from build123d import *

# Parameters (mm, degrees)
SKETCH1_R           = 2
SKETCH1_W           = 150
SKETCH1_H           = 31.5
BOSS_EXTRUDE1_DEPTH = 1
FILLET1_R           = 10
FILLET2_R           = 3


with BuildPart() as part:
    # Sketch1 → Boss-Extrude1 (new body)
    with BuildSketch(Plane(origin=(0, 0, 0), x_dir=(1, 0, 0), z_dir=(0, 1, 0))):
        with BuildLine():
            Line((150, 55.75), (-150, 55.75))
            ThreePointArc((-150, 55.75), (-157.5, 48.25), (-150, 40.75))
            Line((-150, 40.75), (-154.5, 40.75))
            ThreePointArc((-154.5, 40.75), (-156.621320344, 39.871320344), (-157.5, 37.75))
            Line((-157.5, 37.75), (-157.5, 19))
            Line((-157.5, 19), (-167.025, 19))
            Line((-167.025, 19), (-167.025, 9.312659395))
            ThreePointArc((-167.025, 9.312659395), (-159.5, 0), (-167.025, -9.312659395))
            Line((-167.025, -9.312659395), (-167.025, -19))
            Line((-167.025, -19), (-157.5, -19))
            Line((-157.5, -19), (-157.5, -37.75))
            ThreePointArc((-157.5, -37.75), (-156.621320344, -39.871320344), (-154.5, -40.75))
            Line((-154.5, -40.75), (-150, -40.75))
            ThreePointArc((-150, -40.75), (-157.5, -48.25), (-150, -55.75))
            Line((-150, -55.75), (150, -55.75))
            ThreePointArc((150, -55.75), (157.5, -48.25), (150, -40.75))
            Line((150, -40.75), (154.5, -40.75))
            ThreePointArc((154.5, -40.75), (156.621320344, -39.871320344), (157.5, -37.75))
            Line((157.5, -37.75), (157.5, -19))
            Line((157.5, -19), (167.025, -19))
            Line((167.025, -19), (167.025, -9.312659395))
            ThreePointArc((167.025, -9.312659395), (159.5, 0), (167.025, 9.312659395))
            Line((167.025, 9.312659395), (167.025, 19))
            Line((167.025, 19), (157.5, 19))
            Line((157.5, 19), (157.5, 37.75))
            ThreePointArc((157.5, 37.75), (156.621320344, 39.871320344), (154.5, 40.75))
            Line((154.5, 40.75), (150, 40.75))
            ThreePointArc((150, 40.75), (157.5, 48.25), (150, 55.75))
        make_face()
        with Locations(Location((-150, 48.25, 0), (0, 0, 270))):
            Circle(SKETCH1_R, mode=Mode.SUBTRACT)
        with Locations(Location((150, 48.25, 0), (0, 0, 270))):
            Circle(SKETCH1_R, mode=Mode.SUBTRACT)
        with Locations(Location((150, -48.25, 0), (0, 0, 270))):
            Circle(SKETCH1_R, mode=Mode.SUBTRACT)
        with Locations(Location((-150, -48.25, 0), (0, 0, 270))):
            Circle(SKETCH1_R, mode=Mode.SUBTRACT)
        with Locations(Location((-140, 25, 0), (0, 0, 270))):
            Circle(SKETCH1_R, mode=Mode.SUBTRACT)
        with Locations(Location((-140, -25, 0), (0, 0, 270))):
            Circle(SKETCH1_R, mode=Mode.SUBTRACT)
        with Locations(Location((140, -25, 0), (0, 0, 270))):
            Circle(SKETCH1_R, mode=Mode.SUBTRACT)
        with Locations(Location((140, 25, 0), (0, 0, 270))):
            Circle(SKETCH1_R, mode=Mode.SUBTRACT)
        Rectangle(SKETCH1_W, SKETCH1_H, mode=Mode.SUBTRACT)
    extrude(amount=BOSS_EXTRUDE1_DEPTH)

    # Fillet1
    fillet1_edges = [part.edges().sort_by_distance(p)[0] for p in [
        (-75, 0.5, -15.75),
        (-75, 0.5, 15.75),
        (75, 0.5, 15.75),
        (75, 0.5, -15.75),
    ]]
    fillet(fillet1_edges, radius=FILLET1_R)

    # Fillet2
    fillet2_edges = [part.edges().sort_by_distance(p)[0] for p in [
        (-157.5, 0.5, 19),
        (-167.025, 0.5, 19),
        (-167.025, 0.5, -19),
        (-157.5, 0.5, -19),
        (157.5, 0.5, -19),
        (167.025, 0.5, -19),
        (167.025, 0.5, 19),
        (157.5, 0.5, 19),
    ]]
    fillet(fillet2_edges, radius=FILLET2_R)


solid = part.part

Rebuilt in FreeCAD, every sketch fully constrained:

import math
import FreeCAD as App
import Part
import Sketcher

V = App.Vector
Q = App.Units.Quantity


def edges_at(feature, points):
    """Names of the edges that pass closest to the given points."""
    edges = feature.Shape.Edges
    near = lambda p: min(range(len(edges)), key=lambda i: edges[i].distToShape(Part.Vertex(*p))[0])
    return sorted({f"Edge{near(p) + 1}" for p in points})


def add_polygon(sketch, points):
    """Adds a closed chain of lines whose ends are joined by coincident constraints."""
    first, n = sketch.GeometryCount, len(points)
    for a, b in zip(points, points[1:] + points[:1]):
        sketch.addGeometry(Part.LineSegment(App.Vector(*a, 0), App.Vector(*b, 0)), False)
    for i in range(n):
        sketch.addConstraint(Sketcher.Constraint("Coincident", first + i, 2, first + (i + 1) % n, 1))

doc = App.newDocument("Part")
body = doc.addObject("PartDesign::Body", "Body")

sketch1 = body.newObject("Sketcher::SketchObject", "Sketch")
sketch1.AttachmentSupport = (doc.getObject("XZ_Plane"), [""])
sketch1.MapMode = "FlatFace"
sketch1.addGeometry(Part.LineSegment(V(150, -55.75, 0), V(-150, -55.75, 0)), False)
sketch1.addGeometry(Part.ArcOfCircle(Part.Circle(V(-150, -48.25, 0), V(0, 0, 1), 7.5), math.radians(90), math.radians(270)), False)
sketch1.addGeometry(Part.LineSegment(V(-150, -40.75, 0), V(-154.5, -40.75, 0)), False)
sketch1.addGeometry(Part.ArcOfCircle(Part.Circle(V(-154.5, -37.75, 0), V(0, 0, 1), 3), math.radians(180), math.radians(270)), False)
sketch1.addGeometry(Part.LineSegment(V(-157.5, -37.75, 0), V(-157.5, -19, 0)), False)
sketch1.addGeometry(Part.LineSegment(V(-157.5, -19, 0), V(-167.025, -19, 0)), False)
sketch1.addGeometry(Part.LineSegment(V(-167.025, -19, 0), V(-167.025, -9.312659, 0)), False)
sketch1.addGeometry(Part.ArcOfCircle(Part.Circle(V(-169.025, 0, 0), V(0, 0, 1), 9.525), math.radians(-77.879186), math.radians(77.879186)), False)
sketch1.addGeometry(Part.LineSegment(V(-167.025, 9.312659, 0), V(-167.025, 19, 0)), False)
sketch1.addGeometry(Part.LineSegment(V(-167.025, 19, 0), V(-157.5, 19, 0)), False)
sketch1.addGeometry(Part.LineSegment(V(-157.5, 19, 0), V(-157.5, 37.75, 0)), False)
sketch1.addGeometry(Part.ArcOfCircle(Part.Circle(V(-154.5, 37.75, 0), V(0, 0, 1), 3), math.radians(90), math.radians(180)), False)
sketch1.addGeometry(Part.LineSegment(V(-154.5, 40.75, 0), V(-150, 40.75, 0)), False)
sketch1.addGeometry(Part.ArcOfCircle(Part.Circle(V(-150, 48.25, 0), V(0, 0, 1), 7.5), math.radians(90), math.radians(270)), False)
sketch1.addGeometry(Part.LineSegment(V(-150, 55.75, 0), V(150, 55.75, 0)), False)
sketch1.addGeometry(Part.ArcOfCircle(Part.Circle(V(150, 48.25, 0), V(0, 0, 1), 7.5), math.radians(-90), math.radians(90)), False)
sketch1.addGeometry(Part.LineSegment(V(150, 40.75, 0), V(154.5, 40.75, 0)), False)
sketch1.addGeometry(Part.ArcOfCircle(Part.Circle(V(154.5, 37.75, 0), V(0, 0, 1), 3), math.radians(0), math.radians(90)), False)
sketch1.addGeometry(Part.LineSegment(V(157.5, 37.75, 0), V(157.5, 19, 0)), False)
sketch1.addGeometry(Part.LineSegment(V(157.5, 19, 0), V(167.025, 19, 0)), False)
sketch1.addGeometry(Part.LineSegment(V(167.025, 19, 0), V(167.025, 9.312659, 0)), False)
sketch1.addGeometry(Part.ArcOfCircle(Part.Circle(V(169.025, 0, 0), V(0, 0, 1), 9.525), math.radians(102.120814), math.radians(257.879186)), False)
sketch1.addGeometry(Part.LineSegment(V(167.025, -9.312659, 0), V(167.025, -19, 0)), False)
sketch1.addGeometry(Part.LineSegment(V(167.025, -19, 0), V(157.5, -19, 0)), False)
sketch1.addGeometry(Part.LineSegment(V(157.5, -19, 0), V(157.5, -37.75, 0)), False)
sketch1.addGeometry(Part.ArcOfCircle(Part.Circle(V(154.5, -37.75, 0), V(0, 0, 1), 3), math.radians(-90), math.radians(0)), False)
sketch1.addGeometry(Part.LineSegment(V(154.5, -40.75, 0), V(150, -40.75, 0)), False)
sketch1.addGeometry(Part.ArcOfCircle(Part.Circle(V(150, -48.25, 0), V(0, 0, 1), 7.5), math.radians(-90), math.radians(90)), False)
sketch1.addGeometry(Part.Circle(V(-150, 48.25, 0), V(0, 0, 1), 2), False)
sketch1.addGeometry(Part.Circle(V(-140, 25, 0), V(0, 0, 1), 2), False)
sketch1.addGeometry(Part.Circle(V(150, 48.25, 0), V(0, 0, 1), 2), False)
sketch1.addGeometry(Part.Circle(V(140, 25, 0), V(0, 0, 1), 2), False)
sketch1.addGeometry(Part.Circle(V(-140, -25, 0), V(0, 0, 1), 2), False)
sketch1.addGeometry(Part.Circle(V(-150, -48.25, 0), V(0, 0, 1), 2), False)
add_polygon(sketch1, [(75, 15.75), (-75, 15.75), (-75, -15.75), (75, -15.75)])
sketch1.addGeometry(Part.Circle(V(140, -25, 0), V(0, 0, 1), 2), False)
sketch1.addGeometry(Part.Circle(V(150, -48.25, 0), V(0, 0, 1), 2), False)
sketch1.addConstraint(Sketcher.Constraint("Tangent", 0, 2, 1, 2))
sketch1.addConstraint(Sketcher.Constraint("Tangent", 1, 1, 2, 1))
sketch1.addConstraint(Sketcher.Constraint("Tangent", 2, 2, 3, 2))
sketch1.addConstraint(Sketcher.Constraint("Tangent", 3, 1, 4, 1))
sketch1.addConstraint(Sketcher.Constraint("Coincident", 4, 2, 5, 1))
sketch1.addConstraint(Sketcher.Constraint("Coincident", 5, 2, 6, 1))
sketch1.addConstraint(Sketcher.Constraint("Coincident", 6, 2, 7, 1))
sketch1.addConstraint(Sketcher.Constraint("Coincident", 7, 2, 8, 1))
sketch1.addConstraint(Sketcher.Constraint("Coincident", 8, 2, 9, 1))
sketch1.addConstraint(Sketcher.Constraint("Coincident", 9, 2, 10, 1))
sketch1.addConstraint(Sketcher.Constraint("Tangent", 10, 2, 11, 2))
sketch1.addConstraint(Sketcher.Constraint("Tangent", 11, 1, 12, 1))
sketch1.addConstraint(Sketcher.Constraint("Tangent", 12, 2, 13, 2))
sketch1.addConstraint(Sketcher.Constraint("Tangent", 13, 1, 14, 1))
sketch1.addConstraint(Sketcher.Constraint("Tangent", 14, 2, 15, 2))
sketch1.addConstraint(Sketcher.Constraint("Tangent", 15, 1, 16, 1))
sketch1.addConstraint(Sketcher.Constraint("Tangent", 16, 2, 17, 2))
sketch1.addConstraint(Sketcher.Constraint("Tangent", 17, 1, 18, 1))
sketch1.addConstraint(Sketcher.Constraint("Coincident", 18, 2, 19, 1))
sketch1.addConstraint(Sketcher.Constraint("Coincident", 19, 2, 20, 1))
sketch1.addConstraint(Sketcher.Constraint("Coincident", 20, 2, 21, 1))
sketch1.addConstraint(Sketcher.Constraint("Coincident", 21, 2, 22, 1))
sketch1.addConstraint(Sketcher.Constraint("Coincident", 22, 2, 23, 1))
sketch1.addConstraint(Sketcher.Constraint("Coincident", 23, 2, 24, 1))
sketch1.addConstraint(Sketcher.Constraint("Tangent", 24, 2, 25, 2))
sketch1.addConstraint(Sketcher.Constraint("Tangent", 25, 1, 26, 1))
sketch1.addConstraint(Sketcher.Constraint("Tangent", 26, 2, 27, 2))
sketch1.addConstraint(Sketcher.Constraint("Tangent", 27, 1, 0, 1))
sketch1.addConstraint(Sketcher.Constraint("Horizontal", 0))
sketch1.addConstraint(Sketcher.Constraint("Horizontal", 2))
sketch1.addConstraint(Sketcher.Constraint("Vertical", 4))
sketch1.addConstraint(Sketcher.Constraint("Horizontal", 5))
sketch1.addConstraint(Sketcher.Constraint("Vertical", 6))
sketch1.addConstraint(Sketcher.Constraint("Vertical", 8))
sketch1.addConstraint(Sketcher.Constraint("Horizontal", 9))
sketch1.addConstraint(Sketcher.Constraint("Vertical", 10))
sketch1.addConstraint(Sketcher.Constraint("Horizontal", 12))
sketch1.addConstraint(Sketcher.Constraint("Horizontal", 14))
sketch1.addConstraint(Sketcher.Constraint("Horizontal", 16))
sketch1.addConstraint(Sketcher.Constraint("Vertical", 18))
sketch1.addConstraint(Sketcher.Constraint("Horizontal", 19))
sketch1.addConstraint(Sketcher.Constraint("Vertical", 20))
sketch1.addConstraint(Sketcher.Constraint("Vertical", 22))
sketch1.addConstraint(Sketcher.Constraint("Horizontal", 23))
sketch1.addConstraint(Sketcher.Constraint("Vertical", 24))
sketch1.addConstraint(Sketcher.Constraint("Horizontal", 26))
sketch1.addConstraint(Sketcher.Constraint("Horizontal", 34))
sketch1.addConstraint(Sketcher.Constraint("Vertical", 35))
sketch1.addConstraint(Sketcher.Constraint("Horizontal", 36))
sketch1.addConstraint(Sketcher.Constraint("Vertical", 37))
sketch1.addConstraint(Sketcher.Constraint("Coincident", 28, 3, 13, 3))
sketch1.addConstraint(Sketcher.Constraint("Coincident", 30, 3, 15, 3))
sketch1.addConstraint(Sketcher.Constraint("Coincident", 33, 3, 1, 3))
sketch1.addConstraint(Sketcher.Constraint("Coincident", 39, 3, 27, 3))
sketch1.addConstraint(Sketcher.Constraint("Equal", 3, 11))
sketch1.addConstraint(Sketcher.Constraint("Equal", 1, 13))
sketch1.addConstraint(Sketcher.Constraint("Equal", 13, 15))
sketch1.addConstraint(Sketcher.Constraint("Equal", 11, 17))
sketch1.addConstraint(Sketcher.Constraint("Equal", 7, 21))
sketch1.addConstraint(Sketcher.Constraint("Equal", 17, 25))
sketch1.addConstraint(Sketcher.Constraint("Equal", 15, 27))
sketch1.addConstraint(Sketcher.Constraint("Equal", 28, 29))
sketch1.addConstraint(Sketcher.Constraint("Equal", 29, 30))
sketch1.addConstraint(Sketcher.Constraint("Equal", 30, 31))
sketch1.addConstraint(Sketcher.Constraint("Equal", 31, 32))
sketch1.addConstraint(Sketcher.Constraint("Equal", 32, 33))
sketch1.addConstraint(Sketcher.Constraint("Equal", 33, 38))
sketch1.addConstraint(Sketcher.Constraint("Equal", 38, 39))
sketch1.addConstraint(Sketcher.Constraint("Symmetric", 1, 3, 15, 3, -1, 1))
sketch1.addConstraint(Sketcher.Constraint("Symmetric", 7, 3, 21, 3, -1, 1))
sketch1.addConstraint(Sketcher.Constraint("Symmetric", 31, 3, 32, 3, -1, 1))
sketch1.addConstraint(Sketcher.Constraint("Symmetric", 29, 3, 38, 3, -1, 1))
sketch1.addConstraint(Sketcher.Constraint("Symmetric", 4, 2, 18, 2, -1, 1))
sketch1.addConstraint(Sketcher.Constraint("Symmetric", 8, 2, 22, 2, -1, 1))
sketch1.addConstraint(Sketcher.Constraint("Symmetric", 34, 2, 36, 2, -1, 1))
sketch1.addConstraint(Sketcher.Constraint("Symmetric", 29, 3, 31, 3, -2))
sketch1.addConstraint(Sketcher.Constraint("Symmetric", 9, 2, 18, 2, -2))
sketch1.addConstraint(Sketcher.Constraint("Symmetric", 7, 2, 20, 2, -2))
sketch1.addConstraint(Sketcher.Constraint("Horizontal", 6, 2, 21, 2))
sketch1.addConstraint(Sketcher.Constraint("Vertical", 1, 3, 13, 3))
sketch1.addConstraint(Sketcher.Constraint("Vertical", 17, 3, 25, 3))
sketch1.addConstraint(Sketcher.Constraint("Vertical", 15, 3, 27, 3))
sketch1.addConstraint(Sketcher.Constraint("Diameter", 28, Q("4 mm")))
sketch1.addConstraint(Sketcher.Constraint("Radius", 3, Q("3 mm")))
sketch1.addConstraint(Sketcher.Constraint("Radius", 1, Q("7.5 mm")))
sketch1.addConstraint(Sketcher.Constraint("DistanceX", 0, 2, 0, 1, Q("300 mm")))
sketch1.addConstraint(Sketcher.Constraint("DistanceX", 34, 2, 34, 1, Q("150 mm")))
sketch1.addConstraint(Sketcher.Constraint("DistanceX", 2, 2, 2, 1, Q("4.5 mm")))
sketch1.addConstraint(Sketcher.Constraint("DistanceY", 35, 2, 35, 1, Q("31.5 mm")))
sketch1.addConstraint(Sketcher.Constraint("DistanceX", 29, 3, -1, 1, Q("140 mm")))
sketch1.addConstraint(Sketcher.Constraint("DistanceY", -1, 1, 29, 3, Q("25 mm")))
sketch1.addConstraint(Sketcher.Constraint("DistanceY", 4, 2, -1, 1, Q("19 mm")))
sketch1.addConstraint(Sketcher.Constraint("Radius", 7, Q("9.525 mm")))
sketch1.addConstraint(Sketcher.Constraint("DistanceY", 1, 3, 11, 3, Q("86 mm")))
sketch1.addConstraint(Sketcher.Constraint("DistanceX", 7, 3, 5, 2, Q("2 mm")))
sketch1.addConstraint(Sketcher.Constraint("DistanceX", 5, 2, 5, 1, Q("9.525 mm")))
pad1 = body.newObject("PartDesign::Pad", "Pad")
pad1.Profile = sketch1
pad1.Length = 1
pad1.Reversed = True
doc.recompute()

fillet = body.newObject("PartDesign::Fillet", "Fillet")
fillet.Base = (pad1, edges_at(pad1, [
    (-75, 0.5, -15.75),
    (-75, 0.5, 15.75),
    (75, 0.5, 15.75),
    (75, 0.5, -15.75),
]))
fillet.Radius = 10
doc.recompute()

fillet2 = body.newObject("PartDesign::Fillet", "Fillet001")
fillet2.Base = (fillet, edges_at(fillet, [
    (-157.5, 0.5, 19),
    (-167.025, 0.5, 19),
    (-167.025, 0.5, -19),
    (-157.5, 0.5, -19),
    (157.5, 0.5, -19),
    (167.025, 0.5, -19),
    (167.025, 0.5, 19),
    (157.5, 0.5, 19),
]))
fillet2.Radius = 3

doc.recompute()
